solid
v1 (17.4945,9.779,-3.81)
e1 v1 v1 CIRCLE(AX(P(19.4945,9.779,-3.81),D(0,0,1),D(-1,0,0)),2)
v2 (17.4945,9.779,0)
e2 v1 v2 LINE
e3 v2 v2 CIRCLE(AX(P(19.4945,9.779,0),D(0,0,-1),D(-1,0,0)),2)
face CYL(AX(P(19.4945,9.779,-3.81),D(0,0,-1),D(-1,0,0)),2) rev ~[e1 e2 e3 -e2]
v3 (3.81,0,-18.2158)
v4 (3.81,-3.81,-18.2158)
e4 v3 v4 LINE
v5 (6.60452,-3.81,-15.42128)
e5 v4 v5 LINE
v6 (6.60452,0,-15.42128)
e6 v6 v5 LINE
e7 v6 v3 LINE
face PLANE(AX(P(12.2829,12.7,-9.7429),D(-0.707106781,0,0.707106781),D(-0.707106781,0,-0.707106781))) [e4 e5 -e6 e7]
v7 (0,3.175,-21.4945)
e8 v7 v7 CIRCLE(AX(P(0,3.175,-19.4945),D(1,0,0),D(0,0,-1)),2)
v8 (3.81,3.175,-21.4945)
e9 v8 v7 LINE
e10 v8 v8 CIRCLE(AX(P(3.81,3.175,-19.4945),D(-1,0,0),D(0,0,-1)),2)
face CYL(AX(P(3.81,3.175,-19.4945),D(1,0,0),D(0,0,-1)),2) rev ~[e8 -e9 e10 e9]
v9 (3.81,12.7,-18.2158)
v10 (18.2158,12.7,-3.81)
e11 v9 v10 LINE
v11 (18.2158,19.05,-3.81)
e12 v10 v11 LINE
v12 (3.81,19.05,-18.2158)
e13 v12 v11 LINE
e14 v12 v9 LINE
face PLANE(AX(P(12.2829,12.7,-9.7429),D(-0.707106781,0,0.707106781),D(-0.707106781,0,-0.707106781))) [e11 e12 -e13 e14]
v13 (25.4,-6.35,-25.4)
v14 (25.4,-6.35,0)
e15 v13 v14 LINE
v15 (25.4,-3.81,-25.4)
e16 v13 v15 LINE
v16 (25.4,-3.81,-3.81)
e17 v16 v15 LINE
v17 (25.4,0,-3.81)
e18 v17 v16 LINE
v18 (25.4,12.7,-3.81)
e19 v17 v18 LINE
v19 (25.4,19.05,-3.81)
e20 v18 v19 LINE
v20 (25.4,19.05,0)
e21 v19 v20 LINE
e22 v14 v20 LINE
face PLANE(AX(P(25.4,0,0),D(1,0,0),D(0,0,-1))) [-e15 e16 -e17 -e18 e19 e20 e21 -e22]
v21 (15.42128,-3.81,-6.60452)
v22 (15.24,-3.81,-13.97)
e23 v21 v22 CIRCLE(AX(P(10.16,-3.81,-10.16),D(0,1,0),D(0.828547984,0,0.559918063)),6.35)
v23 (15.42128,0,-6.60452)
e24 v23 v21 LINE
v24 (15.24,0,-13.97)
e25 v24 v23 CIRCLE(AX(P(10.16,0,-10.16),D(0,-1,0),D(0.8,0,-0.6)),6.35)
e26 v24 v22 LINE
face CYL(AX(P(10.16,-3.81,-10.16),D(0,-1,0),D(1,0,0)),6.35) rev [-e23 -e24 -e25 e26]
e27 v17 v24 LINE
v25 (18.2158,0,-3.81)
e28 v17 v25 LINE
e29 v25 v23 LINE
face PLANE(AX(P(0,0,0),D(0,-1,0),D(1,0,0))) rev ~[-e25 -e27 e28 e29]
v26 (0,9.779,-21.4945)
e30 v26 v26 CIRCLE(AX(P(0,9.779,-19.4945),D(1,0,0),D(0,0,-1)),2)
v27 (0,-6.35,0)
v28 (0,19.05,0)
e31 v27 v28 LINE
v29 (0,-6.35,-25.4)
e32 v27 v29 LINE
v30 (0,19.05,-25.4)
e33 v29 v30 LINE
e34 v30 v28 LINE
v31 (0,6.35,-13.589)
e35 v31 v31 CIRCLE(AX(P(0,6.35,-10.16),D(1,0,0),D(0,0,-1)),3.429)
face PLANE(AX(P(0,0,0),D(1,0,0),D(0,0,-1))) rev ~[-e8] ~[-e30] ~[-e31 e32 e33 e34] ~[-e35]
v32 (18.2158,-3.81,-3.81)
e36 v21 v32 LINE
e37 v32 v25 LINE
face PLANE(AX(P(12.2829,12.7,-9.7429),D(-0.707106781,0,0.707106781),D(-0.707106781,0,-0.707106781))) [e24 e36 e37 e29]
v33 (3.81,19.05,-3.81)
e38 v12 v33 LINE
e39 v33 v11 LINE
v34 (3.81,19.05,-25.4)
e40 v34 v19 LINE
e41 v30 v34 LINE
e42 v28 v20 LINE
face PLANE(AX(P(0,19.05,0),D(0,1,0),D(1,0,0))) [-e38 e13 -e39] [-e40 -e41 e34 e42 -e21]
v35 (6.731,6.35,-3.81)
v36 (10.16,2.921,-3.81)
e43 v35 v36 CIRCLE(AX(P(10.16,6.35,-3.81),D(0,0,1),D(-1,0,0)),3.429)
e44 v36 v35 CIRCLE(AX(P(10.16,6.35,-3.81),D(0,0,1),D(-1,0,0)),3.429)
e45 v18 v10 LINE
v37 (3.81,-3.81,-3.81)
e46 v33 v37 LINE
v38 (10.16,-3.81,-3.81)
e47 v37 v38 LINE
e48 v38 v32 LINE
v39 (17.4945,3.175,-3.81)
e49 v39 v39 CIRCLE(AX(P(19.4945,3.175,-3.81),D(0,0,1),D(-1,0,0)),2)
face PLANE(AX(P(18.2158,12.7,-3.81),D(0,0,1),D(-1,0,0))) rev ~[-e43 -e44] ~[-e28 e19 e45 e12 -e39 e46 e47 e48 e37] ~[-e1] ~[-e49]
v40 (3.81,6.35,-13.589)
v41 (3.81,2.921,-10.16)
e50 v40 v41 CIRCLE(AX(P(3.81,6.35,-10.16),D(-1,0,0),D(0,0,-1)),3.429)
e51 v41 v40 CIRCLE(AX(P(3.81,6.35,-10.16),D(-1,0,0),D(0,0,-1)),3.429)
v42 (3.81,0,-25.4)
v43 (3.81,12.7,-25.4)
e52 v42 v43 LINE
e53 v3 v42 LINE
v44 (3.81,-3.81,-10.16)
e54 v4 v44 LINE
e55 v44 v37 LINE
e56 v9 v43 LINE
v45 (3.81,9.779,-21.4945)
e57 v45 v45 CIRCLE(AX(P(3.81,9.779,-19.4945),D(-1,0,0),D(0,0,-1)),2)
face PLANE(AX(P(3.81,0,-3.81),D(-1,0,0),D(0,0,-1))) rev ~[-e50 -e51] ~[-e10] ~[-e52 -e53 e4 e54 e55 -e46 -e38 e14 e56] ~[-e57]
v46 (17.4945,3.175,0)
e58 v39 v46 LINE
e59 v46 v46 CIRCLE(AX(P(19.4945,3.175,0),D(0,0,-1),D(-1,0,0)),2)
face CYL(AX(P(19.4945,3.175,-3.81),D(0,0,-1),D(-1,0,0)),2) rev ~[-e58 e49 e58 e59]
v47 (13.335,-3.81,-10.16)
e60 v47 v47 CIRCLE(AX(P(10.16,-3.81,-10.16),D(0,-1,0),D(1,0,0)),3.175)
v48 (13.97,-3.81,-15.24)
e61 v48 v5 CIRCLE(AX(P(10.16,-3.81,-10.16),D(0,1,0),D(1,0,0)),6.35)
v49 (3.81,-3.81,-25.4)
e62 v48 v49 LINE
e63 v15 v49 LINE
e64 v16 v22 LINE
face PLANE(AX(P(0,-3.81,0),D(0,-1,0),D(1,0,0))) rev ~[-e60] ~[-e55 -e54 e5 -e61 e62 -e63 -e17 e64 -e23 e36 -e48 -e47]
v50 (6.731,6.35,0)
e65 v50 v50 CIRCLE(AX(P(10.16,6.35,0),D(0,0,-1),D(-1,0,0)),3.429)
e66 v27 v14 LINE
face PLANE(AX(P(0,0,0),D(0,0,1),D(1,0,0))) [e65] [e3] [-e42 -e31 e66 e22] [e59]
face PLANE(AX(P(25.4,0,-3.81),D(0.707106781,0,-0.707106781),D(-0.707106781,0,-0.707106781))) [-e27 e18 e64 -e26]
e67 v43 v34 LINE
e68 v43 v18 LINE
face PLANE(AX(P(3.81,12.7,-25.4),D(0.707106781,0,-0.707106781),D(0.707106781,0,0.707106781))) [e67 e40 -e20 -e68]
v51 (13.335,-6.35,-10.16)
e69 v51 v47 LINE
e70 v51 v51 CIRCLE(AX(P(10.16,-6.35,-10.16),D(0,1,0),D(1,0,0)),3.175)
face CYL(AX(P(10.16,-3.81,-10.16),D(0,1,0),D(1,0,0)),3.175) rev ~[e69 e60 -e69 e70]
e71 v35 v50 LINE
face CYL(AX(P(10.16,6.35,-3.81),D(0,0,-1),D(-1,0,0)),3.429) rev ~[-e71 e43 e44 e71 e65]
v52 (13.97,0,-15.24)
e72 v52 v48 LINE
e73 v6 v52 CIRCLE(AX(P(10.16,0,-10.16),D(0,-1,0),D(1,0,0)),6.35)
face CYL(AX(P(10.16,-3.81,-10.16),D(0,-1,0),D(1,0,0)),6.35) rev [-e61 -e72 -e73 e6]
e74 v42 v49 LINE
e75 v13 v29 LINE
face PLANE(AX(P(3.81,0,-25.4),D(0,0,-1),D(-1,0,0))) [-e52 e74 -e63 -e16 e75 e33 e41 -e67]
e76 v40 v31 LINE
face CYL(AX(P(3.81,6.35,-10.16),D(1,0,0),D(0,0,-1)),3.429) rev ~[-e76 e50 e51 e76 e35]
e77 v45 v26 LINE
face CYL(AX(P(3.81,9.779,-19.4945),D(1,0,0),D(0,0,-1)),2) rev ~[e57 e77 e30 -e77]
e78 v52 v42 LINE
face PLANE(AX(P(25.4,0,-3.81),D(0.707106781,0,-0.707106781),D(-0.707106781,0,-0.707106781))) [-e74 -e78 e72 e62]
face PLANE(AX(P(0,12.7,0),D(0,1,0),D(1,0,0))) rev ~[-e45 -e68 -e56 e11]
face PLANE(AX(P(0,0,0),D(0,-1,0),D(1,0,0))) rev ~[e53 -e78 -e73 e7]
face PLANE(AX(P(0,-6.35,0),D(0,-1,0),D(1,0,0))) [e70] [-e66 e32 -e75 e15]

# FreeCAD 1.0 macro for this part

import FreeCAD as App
import Part
import Sketcher
from FreeCAD import Vector
Q = App.Units.Quantity


def add_polygon(sketch, points):
    """Adds a closed chain of lines whose ends are joined by coincident constraints."""
    first, n = sketch.GeometryCount, len(points)
    for a, b in zip(points, points[1:] + points[:1]):
        sketch.addGeometry(Part.LineSegment(App.Vector(*a, 0), App.Vector(*b, 0)), False)
    for i in range(n):
        sketch.addConstraint(Sketcher.Constraint("Coincident", first + i, 2, first + (i + 1) % n, 1))

doc = App.newDocument("Part")
body = doc.addObject("PartDesign::Body", "Body")

# Sketch on XZ plane
sketch1 = doc.addObject("Sketcher::SketchObject", "Sketch")
body.addObject(sketch1)
sketch1.AttachmentSupport = (doc.XZ_Plane, [""])
sketch1.MapMode = "FlatFace"
add_polygon(sketch1, [(0, 0), (25.4, 0), (25.4, -3.81), (3.81, -3.81), (3.81, -25.4), (0, -25.4)])  # lines 0-5
sketch1.addConstraint([
    Sketcher.Constraint("Horizontal", 0),
    Sketcher.Constraint("Vertical", 1),
    Sketcher.Constraint("Horizontal", 2),
    Sketcher.Constraint("Vertical", 3),
    Sketcher.Constraint("Horizontal", 4),
    Sketcher.Constraint("Vertical", 5),
    Sketcher.Constraint("Coincident", 5, 2, -1, 1),
    Sketcher.Constraint("Equal", 4, 1),
    Sketcher.Constraint("Equal", 2, 3),
    Sketcher.Constraint("DistanceX", 0, 1, 0, 2, Q("1 in")),
    Sketcher.Constraint("DistanceX", 4, 2, 4, 1, Q("0.15 in")),
])
pad1 = doc.addObject("PartDesign::Pad", "Pad")
body.addObject(pad1)
pad1.Profile = sketch1
pad1.Length = Q("0.5 in")
pad1.Reversed = True

# Sketch on XZ plane
sketch2 = doc.addObject("Sketcher::SketchObject", "Sketch001")
body.addObject(sketch2)
sketch2.AttachmentSupport = (doc.XZ_Plane, [""])
sketch2.MapMode = "FlatFace"
sketch2.AttachmentOffset = App.Placement(Vector(0, 0, -0.5 * 25.4), App.Rotation())
add_polygon(sketch2, [(25.4, 0), (25.4, -3.81), (3.81, -25.4), (0, -25.4), (0, 0)])  # lines 0-4
sketch2.addConstraint([
    Sketcher.Constraint("Vertical", 0),
    Sketcher.Constraint("Horizontal", 2),
    Sketcher.Constraint("Vertical", 3),
    Sketcher.Constraint("Horizontal", 4),
    Sketcher.Constraint("Coincident", 3, 2, -1, 1),
    Sketcher.Constraint("Equal", 2, 0),
    Sketcher.Constraint("Equal", 4, 3),
    Sketcher.Constraint("DistanceX", 4, 1, 4, 2, Q("1 in")),
    Sketcher.Constraint("DistanceX", 2, 2, 2, 1, Q("0.15 in")),
])
pad2 = doc.addObject("PartDesign::Pad", "Pad001")
body.addObject(pad2)
pad2.Profile = sketch2
pad2.Length = Q("0.25 in")
pad2.Reversed = True

# Sketch on XZ plane
sketch3 = doc.addObject("Sketcher::SketchObject", "Sketch002")
body.addObject(sketch3)
sketch3.AttachmentSupport = (doc.XZ_Plane, [""])
sketch3.MapMode = "FlatFace"
add_polygon(sketch3, [(0, -25.4), (3.81, -25.4), (25.4, -3.81), (25.4, 0), (0, 0)])  # lines 0-4
sketch3.addConstraint([
    Sketcher.Constraint("Horizontal", 0),
    Sketcher.Constraint("Vertical", 2),
    Sketcher.Constraint("Horizontal", 3),
    Sketcher.Constraint("Vertical", 4),
    Sketcher.Constraint("Coincident", 3, 2, -1, 1),
    Sketcher.Constraint("Equal", 0, 2),
    Sketcher.Constraint("Equal", 3, 4),
    Sketcher.Constraint("DistanceX", 3, 2, 3, 1, Q("1 in")),
    Sketcher.Constraint("DistanceX", 0, 1, 0, 2, Q("0.15 in")),
])
pad3 = doc.addObject("PartDesign::Pad", "Pad002")
body.addObject(pad3)
pad3.Profile = sketch3
pad3.Length = Q("0.25 in")

# Sketch on XZ plane
sketch4 = doc.addObject("Sketcher::SketchObject", "Sketch003")
body.addObject(sketch4)
sketch4.AttachmentSupport = (doc.XZ_Plane, [""])
sketch4.MapMode = "FlatFace"
sketch4.AttachmentOffset = App.Placement(Vector(0, 0, -0.5 * 25.4), App.Rotation())
add_polygon(sketch4, [(3.81, -3.81), (3.81, -18.2158), (18.2158, -3.81)])  # lines 0-2
sketch4.addConstraint([
    Sketcher.Constraint("Vertical", 0),
    Sketcher.Constraint("Horizontal", 2),
    Sketcher.Constraint("Equal", 2, 0),
    Sketcher.Constraint("DistanceX", -1, 1, 0, 2, Q("0.15 in")),
    Sketcher.Constraint("DistanceY", 1, 2, -1, 1, Q("0.15 in")),
    Sketcher.Constraint("DistanceX", 2, 2, 2, 1, 14.4058),
])
pocket1 = doc.addObject("PartDesign::Pocket", "Pocket")
body.addObject(pocket1)
pocket1.Profile = sketch4
pocket1.Length = Q("2 in")
pocket1.Midplane = True

# Sketch on YZ plane
sketch5 = doc.addObject("Sketcher::SketchObject", "Sketch004")
body.addObject(sketch5)
sketch5.AttachmentSupport = (doc.YZ_Plane, [""])
sketch5.MapMode = "FlatFace"
sketch5.AttachmentOffset = App.Placement(Vector(0, 0, 0.15 * 25.4), App.Rotation())
sketch5.addGeometry([
    Part.Circle(Vector(6.35, -10.16, 0), Vector(0, 0, 1), 3.429),
    Part.Circle(Vector(3.175, -19.4945, 0), Vector(0, 0, 1), 2),
    Part.Circle(Vector(9.779, -19.4945, 0), Vector(0, 0, 1), 2),
], False)
sketch5.addConstraint([
    Sketcher.Constraint("Equal", 1, 2),
    Sketcher.Constraint("Horizontal", 1, 3, 2, 3),
    Sketcher.Constraint("Diameter", 0, Q("0.27 in")),
    Sketcher.Constraint("Diameter", 1, 4.0),
    Sketcher.Constraint("DistanceY", 0, 3, -1, 1, Q("0.4 in")),
    Sketcher.Constraint("DistanceX", -1, 1, 0, 3, Q("0.25 in")),
    Sketcher.Constraint("DistanceX", 1, 3, 2, 3, Q("0.26 in")),
    Sketcher.Constraint("DistanceX", -1, 1, 1, 3, Q("0.125 in")),
    Sketcher.Constraint("DistanceY", 1, 3, -1, 1, Q("0.7675 in")),
])
pocket2 = doc.addObject("PartDesign::Pocket", "Pocket001")
body.addObject(pocket2)
pocket2.Profile = sketch5
pocket2.Length = Q("0.5 in")

# Sketch on XY plane
sketch6 = doc.addObject("Sketcher::SketchObject", "Sketch005")
body.addObject(sketch6)
sketch6.AttachmentSupport = (doc.XY_Plane, [""])
sketch6.MapMode = "FlatFace"
sketch6.AttachmentOffset = App.Placement(Vector(0, 0, -0.15 * 25.4), App.Rotation())
sketch6.addGeometry([
    Part.Circle(Vector(10.16, 6.35, 0), Vector(0, 0, 1), 3.429),
    Part.Circle(Vector(19.4945, 3.175, 0), Vector(0, 0, 1), 2),
    Part.Circle(Vector(19.4945, 9.779, 0), Vector(0, 0, 1), 2),
], False)
sketch6.addConstraint([
    Sketcher.Constraint("Equal", 1, 2),
    Sketcher.Constraint("Vertical", 1, 3, 2, 3),
    Sketcher.Constraint("Diameter", 0, Q("0.27 in")),
    Sketcher.Constraint("Diameter", 1, 4.0),
    Sketcher.Constraint("DistanceX", -1, 1, 0, 3, Q("0.4 in")),
    Sketcher.Constraint("DistanceY", -1, 1, 0, 3, Q("0.25 in")),
    Sketcher.Constraint("DistanceY", 1, 3, 2, 3, Q("0.26 in")),
    Sketcher.Constraint("DistanceY", -1, 1, 1, 3, Q("0.125 in")),
    Sketcher.Constraint("DistanceX", -1, 1, 1, 3, Q("0.7675 in")),
])
pocket3 = doc.addObject("PartDesign::Pocket", "Pocket002")
body.addObject(pocket3)
pocket3.Profile = sketch6
pocket3.Length = Q("0.5 in")
pocket3.Reversed = True

# Sketch on XZ plane
sketch7 = doc.addObject("Sketcher::SketchObject", "Sketch006")
body.addObject(sketch7)
sketch7.AttachmentSupport = (doc.XZ_Plane, [""])
sketch7.MapMode = "FlatFace"
sketch7.AttachmentOffset = App.Placement(Vector(0, 0, 0.25 * 25.4), App.Rotation())
add_polygon(sketch7, [(25.4, -25.4), (25.4, 0), (0, 0), (0, -25.4)])  # lines 0-3
sketch7.addConstraint([
    Sketcher.Constraint("Vertical", 0),
    Sketcher.Constraint("Horizontal", 1),
    Sketcher.Constraint("Vertical", 2),
    Sketcher.Constraint("Horizontal", 3),
    Sketcher.Constraint("Coincident", 1, 2, -1, 1),
    Sketcher.Constraint("Equal", 3, 0),
    Sketcher.Constraint("DistanceX", 1, 2, 1, 1, Q("1 in")),
])
pad4 = doc.addObject("PartDesign::Pad", "Pad003")
body.addObject(pad4)
pad4.Profile = sketch7
pad4.Length = Q("0.1 in")
pad4.Reversed = True

# Sketch on XZ plane
sketch8 = doc.addObject("Sketcher::SketchObject", "Sketch007")
body.addObject(sketch8)
sketch8.AttachmentSupport = (doc.XZ_Plane, [""])
sketch8.MapMode = "FlatFace"
sketch8.AttachmentOffset = App.Placement(Vector(0, 0, 0.15 * 25.4), App.Rotation())
sketch8.addGeometry(Part.Circle(Vector(10.16, -10.16, 0), Vector(0, 0, 1), 3.175), False)
sketch8.addConstraint([
    Sketcher.Constraint("Diameter", 0, Q("0.25 in")),
    Sketcher.Constraint("DistanceX", -1, 1, 0, 3, Q("0.4 in")),
    Sketcher.Constraint("DistanceY", 0, 3, -1, 1, Q("0.4 in")),
])
pocket4 = doc.addObject("PartDesign::Pocket", "Pocket003")
body.addObject(pocket4)
pocket4.Profile = sketch8
pocket4.Length = Q("0.4 in")
pocket4.Midplane = True

# Sketch on XZ plane
sketch9 = doc.addObject("Sketcher::SketchObject", "Sketch008")
body.addObject(sketch9)
sketch9.AttachmentSupport = (doc.XZ_Plane, [""])
sketch9.MapMode = "FlatFace"
sketch9.AttachmentOffset = App.Placement(Vector(0, 0, 0.15 * 25.4), App.Rotation())
sketch9.addGeometry([
    Part.Circle(Vector(10.16, -10.16, 0), Vector(0, 0, 1), 6.35),
    Part.Circle(Vector(10.16, -10.16, 0), Vector(0, 0, 1), 3.175),
], False)
sketch9.addConstraint([
    Sketcher.Constraint("Coincident", 1, 3, 0, 3),
    Sketcher.Constraint("Diameter", 0, Q("0.5 in")),
    Sketcher.Constraint("Diameter", 1, Q("0.25 in")),
    Sketcher.Constraint("DistanceX", -1, 1, 0, 3, Q("0.4 in")),
    Sketcher.Constraint("DistanceY", 0, 3, -1, 1, Q("0.4 in")),
])
pocket5 = doc.addObject("PartDesign::Pocket", "Pocket004")
body.addObject(pocket5)
pocket5.Profile = sketch9
pocket5.Length = Q("0.4 in")

doc.recompute()
